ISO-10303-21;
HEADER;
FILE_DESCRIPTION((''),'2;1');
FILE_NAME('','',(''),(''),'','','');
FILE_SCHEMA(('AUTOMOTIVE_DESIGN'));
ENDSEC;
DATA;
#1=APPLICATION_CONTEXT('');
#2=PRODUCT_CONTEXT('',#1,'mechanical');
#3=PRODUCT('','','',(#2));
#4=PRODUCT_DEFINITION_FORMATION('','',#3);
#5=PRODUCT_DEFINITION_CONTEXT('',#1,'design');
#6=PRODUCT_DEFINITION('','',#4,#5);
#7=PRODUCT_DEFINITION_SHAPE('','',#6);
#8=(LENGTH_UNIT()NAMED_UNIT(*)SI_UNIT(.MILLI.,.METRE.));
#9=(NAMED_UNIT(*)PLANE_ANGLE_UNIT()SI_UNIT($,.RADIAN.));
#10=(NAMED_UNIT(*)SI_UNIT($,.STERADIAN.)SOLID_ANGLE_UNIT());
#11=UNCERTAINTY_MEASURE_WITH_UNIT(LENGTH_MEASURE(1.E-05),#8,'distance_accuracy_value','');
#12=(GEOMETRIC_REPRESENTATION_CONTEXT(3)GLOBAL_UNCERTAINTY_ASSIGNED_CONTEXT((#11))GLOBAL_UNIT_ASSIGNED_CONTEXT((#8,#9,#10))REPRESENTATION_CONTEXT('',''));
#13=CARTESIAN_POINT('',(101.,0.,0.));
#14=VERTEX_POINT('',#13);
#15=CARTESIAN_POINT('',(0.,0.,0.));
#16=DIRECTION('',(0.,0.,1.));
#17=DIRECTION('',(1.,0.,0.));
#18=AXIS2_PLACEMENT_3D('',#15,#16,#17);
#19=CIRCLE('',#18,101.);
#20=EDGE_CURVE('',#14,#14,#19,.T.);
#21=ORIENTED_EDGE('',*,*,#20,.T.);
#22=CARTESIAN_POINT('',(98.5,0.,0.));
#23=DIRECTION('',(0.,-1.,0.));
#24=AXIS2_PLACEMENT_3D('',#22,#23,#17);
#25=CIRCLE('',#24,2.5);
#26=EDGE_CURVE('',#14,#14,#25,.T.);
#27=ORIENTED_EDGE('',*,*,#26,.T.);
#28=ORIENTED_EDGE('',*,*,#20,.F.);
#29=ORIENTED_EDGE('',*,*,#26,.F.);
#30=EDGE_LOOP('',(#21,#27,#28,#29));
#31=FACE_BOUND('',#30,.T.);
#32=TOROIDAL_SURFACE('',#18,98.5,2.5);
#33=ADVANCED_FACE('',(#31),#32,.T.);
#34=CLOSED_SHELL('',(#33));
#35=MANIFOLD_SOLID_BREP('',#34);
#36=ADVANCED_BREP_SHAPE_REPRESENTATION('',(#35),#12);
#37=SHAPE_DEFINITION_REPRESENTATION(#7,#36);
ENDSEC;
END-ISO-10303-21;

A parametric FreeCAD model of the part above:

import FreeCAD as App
import Part
import Sketcher

V = App.Vector

doc = App.newDocument("Part")
body = doc.addObject("PartDesign::Body", "Body")

# Sketch on XZ plane
sketch1 = body.newObject("Sketcher::SketchObject", "Sketch")
sketch1.AttachmentSupport = (doc.getObject("XZ_Plane"), [""])
sketch1.MapMode = "FlatFace"
sketch1.addGeometry(Part.Circle(V(98.5, 0, 0), V(0, 0, 1), 2.5), False)
sketch1.addConstraint([
    Sketcher.Constraint("PointOnObject", 0, 3, -1),
    Sketcher.Constraint("Diameter", 0, 5.0),
    Sketcher.Constraint("DistanceX", -1, 1, 0, 3, 98.5),
])
revolution = body.newObject("PartDesign::Revolution", "Revolution")
revolution.Profile = sketch1
revolution.ReferenceAxis = (sketch1, ["V_Axis"])
revolution.Angle = 360

doc.recompute()
